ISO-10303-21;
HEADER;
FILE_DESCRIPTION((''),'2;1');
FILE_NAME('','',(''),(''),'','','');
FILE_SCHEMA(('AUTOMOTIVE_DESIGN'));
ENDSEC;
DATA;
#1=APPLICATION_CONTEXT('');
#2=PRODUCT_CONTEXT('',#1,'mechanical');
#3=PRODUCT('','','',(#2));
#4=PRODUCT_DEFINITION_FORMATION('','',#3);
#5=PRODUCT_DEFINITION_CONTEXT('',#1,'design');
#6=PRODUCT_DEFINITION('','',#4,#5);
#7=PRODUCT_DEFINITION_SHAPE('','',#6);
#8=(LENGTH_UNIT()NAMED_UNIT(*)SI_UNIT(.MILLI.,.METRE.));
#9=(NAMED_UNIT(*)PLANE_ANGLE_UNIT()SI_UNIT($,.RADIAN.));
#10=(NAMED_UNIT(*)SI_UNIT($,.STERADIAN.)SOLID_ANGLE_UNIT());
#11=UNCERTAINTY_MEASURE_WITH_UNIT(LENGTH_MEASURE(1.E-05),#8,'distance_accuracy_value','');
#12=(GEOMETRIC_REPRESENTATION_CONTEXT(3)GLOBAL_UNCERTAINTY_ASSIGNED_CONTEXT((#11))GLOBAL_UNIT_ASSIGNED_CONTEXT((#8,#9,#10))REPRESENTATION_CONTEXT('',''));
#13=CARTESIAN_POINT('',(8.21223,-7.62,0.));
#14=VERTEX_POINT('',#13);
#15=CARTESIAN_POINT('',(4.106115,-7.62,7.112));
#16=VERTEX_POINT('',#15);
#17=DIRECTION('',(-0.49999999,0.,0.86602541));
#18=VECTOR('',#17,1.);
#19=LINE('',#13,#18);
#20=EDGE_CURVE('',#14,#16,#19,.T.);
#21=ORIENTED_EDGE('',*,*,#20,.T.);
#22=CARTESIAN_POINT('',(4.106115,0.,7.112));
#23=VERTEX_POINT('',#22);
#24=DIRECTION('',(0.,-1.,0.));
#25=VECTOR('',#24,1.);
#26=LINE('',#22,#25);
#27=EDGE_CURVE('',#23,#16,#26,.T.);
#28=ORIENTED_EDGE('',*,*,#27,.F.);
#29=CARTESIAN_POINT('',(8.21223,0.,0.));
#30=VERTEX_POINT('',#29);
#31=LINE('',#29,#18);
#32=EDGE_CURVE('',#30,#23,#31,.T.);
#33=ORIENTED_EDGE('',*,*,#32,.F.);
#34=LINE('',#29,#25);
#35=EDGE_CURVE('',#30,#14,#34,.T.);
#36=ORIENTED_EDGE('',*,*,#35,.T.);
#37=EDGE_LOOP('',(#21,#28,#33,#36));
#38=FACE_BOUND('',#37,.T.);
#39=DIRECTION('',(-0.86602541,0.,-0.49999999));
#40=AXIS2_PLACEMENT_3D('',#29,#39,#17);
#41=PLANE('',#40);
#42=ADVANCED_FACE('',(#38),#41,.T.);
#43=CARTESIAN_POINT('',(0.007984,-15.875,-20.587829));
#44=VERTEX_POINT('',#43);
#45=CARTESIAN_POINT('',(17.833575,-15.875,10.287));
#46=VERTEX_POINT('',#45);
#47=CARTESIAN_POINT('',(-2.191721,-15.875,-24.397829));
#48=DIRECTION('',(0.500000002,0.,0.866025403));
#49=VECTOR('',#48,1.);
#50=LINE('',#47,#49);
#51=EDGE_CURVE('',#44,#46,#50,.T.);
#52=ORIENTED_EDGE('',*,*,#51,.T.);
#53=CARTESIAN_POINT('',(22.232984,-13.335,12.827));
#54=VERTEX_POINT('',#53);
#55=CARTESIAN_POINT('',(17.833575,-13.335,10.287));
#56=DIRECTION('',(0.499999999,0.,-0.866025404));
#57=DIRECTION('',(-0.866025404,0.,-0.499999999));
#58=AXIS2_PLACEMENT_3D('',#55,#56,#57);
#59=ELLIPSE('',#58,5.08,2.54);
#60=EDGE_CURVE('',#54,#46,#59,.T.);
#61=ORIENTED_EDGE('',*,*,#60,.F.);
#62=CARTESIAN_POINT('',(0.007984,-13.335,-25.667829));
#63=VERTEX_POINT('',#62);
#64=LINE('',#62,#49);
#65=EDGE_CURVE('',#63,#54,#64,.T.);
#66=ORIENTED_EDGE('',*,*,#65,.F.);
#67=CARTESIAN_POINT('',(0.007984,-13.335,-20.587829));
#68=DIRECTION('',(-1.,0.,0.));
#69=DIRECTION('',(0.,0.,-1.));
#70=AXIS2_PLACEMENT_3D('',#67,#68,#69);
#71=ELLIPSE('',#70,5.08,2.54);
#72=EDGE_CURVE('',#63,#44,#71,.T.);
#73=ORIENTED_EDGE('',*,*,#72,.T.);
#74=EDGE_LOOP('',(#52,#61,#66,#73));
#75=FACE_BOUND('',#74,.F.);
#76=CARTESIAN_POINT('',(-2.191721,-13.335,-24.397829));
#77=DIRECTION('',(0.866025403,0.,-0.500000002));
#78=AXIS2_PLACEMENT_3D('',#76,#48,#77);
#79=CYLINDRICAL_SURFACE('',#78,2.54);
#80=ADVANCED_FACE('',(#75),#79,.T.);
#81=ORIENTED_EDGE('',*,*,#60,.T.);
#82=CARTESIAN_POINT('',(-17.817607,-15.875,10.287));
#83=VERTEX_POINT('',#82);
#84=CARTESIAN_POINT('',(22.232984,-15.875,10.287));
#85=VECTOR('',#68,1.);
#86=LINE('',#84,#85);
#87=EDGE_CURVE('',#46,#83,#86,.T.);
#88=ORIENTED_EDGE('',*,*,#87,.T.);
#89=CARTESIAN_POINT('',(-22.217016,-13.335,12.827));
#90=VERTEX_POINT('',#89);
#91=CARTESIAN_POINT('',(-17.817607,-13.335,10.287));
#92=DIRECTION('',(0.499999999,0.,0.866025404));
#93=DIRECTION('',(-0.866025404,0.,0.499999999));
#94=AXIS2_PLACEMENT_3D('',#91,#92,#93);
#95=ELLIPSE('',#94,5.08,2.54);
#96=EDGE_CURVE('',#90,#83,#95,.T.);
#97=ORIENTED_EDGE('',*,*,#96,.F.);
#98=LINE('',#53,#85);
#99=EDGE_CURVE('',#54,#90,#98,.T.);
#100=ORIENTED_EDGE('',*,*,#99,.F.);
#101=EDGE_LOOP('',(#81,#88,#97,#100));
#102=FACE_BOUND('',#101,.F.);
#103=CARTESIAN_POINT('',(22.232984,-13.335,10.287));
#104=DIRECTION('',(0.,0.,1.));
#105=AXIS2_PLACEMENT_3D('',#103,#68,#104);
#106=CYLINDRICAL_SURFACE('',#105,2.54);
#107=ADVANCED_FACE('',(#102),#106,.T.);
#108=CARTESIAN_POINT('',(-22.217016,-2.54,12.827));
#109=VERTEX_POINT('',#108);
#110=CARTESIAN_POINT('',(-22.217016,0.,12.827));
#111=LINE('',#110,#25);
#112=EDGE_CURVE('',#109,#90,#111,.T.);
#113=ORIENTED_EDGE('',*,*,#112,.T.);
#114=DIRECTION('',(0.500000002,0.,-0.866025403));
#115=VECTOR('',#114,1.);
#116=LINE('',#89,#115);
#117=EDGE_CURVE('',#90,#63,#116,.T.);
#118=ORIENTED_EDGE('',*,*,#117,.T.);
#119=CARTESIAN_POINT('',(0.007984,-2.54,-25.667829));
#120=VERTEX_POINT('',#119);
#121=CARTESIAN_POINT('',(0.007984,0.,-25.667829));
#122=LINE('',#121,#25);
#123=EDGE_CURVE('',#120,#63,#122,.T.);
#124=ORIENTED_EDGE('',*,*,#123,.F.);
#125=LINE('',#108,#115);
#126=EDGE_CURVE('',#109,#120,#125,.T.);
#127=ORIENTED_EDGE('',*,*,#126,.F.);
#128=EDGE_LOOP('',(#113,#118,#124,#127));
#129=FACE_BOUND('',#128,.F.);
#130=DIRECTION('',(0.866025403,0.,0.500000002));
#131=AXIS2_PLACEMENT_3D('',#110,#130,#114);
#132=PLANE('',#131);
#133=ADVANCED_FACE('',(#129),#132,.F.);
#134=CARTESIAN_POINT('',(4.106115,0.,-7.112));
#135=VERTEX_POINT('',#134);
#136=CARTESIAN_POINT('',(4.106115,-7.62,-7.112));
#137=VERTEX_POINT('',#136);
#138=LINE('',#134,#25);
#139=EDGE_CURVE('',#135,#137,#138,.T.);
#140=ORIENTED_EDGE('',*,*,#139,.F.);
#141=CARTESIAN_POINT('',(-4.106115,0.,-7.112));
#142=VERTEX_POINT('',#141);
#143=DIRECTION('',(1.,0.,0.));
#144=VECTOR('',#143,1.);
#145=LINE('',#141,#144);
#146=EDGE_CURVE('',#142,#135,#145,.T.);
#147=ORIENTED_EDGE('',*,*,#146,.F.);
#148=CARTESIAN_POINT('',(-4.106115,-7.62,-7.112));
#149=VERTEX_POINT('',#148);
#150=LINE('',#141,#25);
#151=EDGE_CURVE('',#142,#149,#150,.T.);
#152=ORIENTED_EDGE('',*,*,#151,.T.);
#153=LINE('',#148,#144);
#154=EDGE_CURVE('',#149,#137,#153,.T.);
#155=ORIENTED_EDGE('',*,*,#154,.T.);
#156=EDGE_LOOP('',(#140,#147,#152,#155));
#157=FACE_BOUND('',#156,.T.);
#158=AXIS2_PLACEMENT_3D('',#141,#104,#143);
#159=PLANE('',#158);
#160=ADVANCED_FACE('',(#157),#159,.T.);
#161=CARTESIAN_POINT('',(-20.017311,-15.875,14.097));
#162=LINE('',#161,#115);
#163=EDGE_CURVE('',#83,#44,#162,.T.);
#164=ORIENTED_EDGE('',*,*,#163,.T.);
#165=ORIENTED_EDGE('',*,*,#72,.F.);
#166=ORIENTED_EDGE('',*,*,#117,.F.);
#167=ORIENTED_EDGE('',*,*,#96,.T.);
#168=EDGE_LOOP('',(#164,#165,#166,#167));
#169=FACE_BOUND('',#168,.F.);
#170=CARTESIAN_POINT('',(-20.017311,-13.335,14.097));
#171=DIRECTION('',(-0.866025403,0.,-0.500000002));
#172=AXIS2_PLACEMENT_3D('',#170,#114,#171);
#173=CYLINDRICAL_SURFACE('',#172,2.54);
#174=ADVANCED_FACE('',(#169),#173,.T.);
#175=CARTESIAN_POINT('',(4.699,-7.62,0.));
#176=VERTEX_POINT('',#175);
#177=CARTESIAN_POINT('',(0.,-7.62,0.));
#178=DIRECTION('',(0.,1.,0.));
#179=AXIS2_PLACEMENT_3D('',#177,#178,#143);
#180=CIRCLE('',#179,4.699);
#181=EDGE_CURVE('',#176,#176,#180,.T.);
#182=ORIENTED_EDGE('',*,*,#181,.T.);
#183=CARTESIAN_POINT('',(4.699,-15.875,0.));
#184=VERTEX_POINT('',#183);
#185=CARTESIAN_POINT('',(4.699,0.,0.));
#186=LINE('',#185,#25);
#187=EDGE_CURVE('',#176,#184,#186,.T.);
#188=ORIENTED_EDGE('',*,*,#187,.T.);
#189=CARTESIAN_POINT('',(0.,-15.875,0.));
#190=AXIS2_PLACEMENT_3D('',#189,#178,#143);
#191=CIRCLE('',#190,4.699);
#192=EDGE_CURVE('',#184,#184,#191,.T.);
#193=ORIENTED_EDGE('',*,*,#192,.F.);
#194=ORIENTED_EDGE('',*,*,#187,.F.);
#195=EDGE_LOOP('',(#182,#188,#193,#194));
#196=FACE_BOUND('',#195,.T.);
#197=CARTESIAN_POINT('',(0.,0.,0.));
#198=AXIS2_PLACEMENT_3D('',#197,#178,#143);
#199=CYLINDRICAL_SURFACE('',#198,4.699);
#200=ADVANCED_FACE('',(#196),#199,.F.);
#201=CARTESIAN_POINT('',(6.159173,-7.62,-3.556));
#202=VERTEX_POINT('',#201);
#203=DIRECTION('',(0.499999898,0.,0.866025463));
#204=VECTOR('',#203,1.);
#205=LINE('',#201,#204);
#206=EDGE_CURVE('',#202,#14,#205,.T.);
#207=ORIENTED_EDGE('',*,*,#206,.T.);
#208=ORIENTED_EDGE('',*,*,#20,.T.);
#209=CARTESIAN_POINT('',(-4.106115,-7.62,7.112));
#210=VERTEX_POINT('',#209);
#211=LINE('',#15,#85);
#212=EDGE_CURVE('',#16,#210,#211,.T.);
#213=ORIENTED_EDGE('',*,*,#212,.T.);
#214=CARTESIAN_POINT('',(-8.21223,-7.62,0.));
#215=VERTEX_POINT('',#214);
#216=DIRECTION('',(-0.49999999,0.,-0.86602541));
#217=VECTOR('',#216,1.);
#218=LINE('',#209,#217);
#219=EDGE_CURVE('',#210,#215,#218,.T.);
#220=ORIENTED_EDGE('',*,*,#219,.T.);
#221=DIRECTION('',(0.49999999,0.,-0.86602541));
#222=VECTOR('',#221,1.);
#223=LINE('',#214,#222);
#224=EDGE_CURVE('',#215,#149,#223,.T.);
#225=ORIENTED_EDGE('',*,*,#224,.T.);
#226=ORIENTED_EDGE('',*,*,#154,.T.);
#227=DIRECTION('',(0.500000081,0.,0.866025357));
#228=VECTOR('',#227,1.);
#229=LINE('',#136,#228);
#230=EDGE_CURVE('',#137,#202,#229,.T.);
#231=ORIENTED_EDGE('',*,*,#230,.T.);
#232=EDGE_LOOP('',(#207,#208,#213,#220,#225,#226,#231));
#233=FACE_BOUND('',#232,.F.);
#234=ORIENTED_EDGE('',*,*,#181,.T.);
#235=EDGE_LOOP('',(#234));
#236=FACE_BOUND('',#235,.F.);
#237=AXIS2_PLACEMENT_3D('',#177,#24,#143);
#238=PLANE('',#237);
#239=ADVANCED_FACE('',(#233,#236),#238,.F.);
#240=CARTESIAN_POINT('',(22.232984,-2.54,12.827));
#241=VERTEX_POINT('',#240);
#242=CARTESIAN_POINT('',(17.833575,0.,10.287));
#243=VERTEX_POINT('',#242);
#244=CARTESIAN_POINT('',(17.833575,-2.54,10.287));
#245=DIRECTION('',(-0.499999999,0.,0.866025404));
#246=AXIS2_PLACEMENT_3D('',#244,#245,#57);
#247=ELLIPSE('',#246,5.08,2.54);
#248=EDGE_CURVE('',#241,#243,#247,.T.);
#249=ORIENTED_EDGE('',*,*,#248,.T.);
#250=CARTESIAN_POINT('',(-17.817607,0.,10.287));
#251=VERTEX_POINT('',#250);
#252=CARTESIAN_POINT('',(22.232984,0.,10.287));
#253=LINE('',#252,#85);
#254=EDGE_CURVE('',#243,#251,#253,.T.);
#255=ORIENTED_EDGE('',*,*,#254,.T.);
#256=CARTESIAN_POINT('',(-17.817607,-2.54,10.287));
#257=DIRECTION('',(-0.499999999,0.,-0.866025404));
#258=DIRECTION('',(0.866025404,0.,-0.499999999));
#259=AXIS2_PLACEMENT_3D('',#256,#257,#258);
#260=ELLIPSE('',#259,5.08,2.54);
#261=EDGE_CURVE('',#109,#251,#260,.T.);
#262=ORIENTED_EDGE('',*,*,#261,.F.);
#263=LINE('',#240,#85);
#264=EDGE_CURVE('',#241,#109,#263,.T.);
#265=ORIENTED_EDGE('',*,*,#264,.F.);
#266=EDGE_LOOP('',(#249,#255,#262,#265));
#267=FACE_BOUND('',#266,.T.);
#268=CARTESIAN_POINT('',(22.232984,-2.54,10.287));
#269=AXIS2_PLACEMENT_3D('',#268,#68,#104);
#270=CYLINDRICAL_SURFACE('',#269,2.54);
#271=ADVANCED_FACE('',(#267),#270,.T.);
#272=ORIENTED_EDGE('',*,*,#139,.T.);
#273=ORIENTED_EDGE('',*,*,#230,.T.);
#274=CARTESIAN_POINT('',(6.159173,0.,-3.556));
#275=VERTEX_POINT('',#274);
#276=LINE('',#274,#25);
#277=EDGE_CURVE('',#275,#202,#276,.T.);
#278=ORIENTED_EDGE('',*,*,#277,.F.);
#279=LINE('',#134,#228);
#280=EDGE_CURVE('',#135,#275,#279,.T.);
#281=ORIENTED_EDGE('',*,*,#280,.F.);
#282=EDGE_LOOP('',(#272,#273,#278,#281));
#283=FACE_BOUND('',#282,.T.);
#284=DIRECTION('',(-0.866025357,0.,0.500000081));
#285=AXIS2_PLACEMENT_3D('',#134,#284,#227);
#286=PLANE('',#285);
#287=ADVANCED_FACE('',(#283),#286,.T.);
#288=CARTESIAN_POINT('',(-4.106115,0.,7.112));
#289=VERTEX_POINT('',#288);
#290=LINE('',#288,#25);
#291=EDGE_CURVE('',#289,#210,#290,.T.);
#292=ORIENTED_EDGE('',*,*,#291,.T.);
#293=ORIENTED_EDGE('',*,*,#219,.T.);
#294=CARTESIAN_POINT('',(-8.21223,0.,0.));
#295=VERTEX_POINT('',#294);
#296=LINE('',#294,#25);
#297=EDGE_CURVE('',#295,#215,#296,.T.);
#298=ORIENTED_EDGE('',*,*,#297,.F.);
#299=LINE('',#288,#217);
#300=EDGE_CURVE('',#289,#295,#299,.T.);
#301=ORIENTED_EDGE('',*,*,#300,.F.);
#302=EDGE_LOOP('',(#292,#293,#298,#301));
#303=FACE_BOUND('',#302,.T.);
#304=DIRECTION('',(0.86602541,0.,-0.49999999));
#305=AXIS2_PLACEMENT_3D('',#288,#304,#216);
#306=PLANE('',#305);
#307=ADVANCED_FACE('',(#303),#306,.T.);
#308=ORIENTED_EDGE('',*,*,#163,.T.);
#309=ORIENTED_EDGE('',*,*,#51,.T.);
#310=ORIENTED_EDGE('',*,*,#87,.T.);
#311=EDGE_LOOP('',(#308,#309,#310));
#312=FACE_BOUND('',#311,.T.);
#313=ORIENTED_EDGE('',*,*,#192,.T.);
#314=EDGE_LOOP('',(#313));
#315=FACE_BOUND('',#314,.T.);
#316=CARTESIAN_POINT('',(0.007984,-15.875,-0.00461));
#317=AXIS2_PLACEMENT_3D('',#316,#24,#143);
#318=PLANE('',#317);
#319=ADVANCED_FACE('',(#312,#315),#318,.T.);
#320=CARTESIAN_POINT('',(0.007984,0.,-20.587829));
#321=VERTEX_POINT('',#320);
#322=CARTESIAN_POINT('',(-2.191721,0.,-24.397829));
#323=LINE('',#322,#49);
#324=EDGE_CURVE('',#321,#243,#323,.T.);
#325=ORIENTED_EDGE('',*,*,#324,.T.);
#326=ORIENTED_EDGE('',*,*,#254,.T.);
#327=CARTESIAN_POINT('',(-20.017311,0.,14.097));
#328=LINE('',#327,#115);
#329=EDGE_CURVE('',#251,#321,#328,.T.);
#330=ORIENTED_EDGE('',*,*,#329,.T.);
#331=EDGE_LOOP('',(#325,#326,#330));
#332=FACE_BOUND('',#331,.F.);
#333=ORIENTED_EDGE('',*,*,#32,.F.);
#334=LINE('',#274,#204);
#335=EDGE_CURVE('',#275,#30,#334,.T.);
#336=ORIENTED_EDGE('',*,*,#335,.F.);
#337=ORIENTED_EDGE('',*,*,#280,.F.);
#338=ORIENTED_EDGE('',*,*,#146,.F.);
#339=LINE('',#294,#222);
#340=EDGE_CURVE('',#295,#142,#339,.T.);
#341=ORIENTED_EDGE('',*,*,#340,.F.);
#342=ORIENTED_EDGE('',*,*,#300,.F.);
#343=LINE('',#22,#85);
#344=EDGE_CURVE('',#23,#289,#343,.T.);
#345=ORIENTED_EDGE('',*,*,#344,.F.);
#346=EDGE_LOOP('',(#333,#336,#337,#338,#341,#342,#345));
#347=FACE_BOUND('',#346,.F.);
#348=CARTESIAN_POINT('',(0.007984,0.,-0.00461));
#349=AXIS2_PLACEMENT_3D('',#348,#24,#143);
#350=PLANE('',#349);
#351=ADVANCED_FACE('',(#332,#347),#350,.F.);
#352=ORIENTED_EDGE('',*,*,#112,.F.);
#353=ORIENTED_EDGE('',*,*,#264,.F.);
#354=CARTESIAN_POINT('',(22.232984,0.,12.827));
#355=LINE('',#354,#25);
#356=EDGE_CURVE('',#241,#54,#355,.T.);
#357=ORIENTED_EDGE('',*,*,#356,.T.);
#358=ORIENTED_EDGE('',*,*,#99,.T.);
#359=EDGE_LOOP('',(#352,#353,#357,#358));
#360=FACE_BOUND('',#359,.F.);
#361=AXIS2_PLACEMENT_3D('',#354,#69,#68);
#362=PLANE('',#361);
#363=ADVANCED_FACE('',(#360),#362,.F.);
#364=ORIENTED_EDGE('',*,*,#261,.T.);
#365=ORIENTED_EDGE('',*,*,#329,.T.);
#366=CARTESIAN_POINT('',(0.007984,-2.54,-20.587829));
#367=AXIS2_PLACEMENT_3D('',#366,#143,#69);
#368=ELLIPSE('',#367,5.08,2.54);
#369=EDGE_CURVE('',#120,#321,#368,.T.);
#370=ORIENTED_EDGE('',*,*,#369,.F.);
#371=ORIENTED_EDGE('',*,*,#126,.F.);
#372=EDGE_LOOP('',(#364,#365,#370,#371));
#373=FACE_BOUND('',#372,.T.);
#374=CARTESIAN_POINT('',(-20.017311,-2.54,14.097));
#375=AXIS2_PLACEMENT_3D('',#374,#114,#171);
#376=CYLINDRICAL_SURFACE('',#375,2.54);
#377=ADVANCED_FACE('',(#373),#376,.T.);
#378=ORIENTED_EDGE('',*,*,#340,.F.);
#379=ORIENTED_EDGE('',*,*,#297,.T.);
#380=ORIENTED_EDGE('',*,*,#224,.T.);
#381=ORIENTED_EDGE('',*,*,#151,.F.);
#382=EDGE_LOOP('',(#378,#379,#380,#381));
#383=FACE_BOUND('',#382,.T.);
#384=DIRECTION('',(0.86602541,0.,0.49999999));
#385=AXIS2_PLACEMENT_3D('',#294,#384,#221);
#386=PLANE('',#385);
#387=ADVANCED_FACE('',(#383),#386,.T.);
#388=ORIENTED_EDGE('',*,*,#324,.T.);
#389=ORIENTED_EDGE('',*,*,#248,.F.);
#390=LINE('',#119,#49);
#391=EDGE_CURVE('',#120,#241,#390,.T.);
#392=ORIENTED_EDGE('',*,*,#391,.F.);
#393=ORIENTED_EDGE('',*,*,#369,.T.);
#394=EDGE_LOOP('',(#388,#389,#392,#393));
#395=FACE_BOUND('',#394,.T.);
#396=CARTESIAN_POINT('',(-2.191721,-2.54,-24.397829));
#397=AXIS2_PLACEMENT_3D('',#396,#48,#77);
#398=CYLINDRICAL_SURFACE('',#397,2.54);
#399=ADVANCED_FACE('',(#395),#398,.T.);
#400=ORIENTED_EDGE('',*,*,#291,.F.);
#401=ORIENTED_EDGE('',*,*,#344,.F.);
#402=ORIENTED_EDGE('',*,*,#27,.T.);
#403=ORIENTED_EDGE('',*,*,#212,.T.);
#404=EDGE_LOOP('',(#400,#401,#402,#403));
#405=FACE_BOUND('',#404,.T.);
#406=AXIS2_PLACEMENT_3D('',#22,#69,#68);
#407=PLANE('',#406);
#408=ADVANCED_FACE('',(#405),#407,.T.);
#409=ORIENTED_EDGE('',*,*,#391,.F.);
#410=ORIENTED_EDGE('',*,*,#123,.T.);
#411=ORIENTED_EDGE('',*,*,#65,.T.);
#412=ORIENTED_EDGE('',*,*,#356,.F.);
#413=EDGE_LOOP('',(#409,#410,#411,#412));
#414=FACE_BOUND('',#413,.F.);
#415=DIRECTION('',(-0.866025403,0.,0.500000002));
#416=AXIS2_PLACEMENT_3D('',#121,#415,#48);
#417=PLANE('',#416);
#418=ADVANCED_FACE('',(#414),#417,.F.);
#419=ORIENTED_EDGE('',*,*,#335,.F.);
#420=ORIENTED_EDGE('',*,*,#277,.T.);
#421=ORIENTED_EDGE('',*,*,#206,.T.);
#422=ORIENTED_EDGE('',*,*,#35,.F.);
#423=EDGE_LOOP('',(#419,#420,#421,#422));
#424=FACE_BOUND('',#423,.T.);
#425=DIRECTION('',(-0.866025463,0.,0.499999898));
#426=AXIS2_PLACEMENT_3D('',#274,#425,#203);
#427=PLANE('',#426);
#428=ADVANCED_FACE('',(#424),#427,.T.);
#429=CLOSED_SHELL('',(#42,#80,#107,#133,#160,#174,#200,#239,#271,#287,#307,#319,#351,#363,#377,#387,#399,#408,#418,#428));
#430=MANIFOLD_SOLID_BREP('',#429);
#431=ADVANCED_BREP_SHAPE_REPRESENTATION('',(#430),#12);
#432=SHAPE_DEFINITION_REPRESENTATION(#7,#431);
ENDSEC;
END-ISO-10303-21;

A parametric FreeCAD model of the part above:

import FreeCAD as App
import Part
import Sketcher
from FreeCAD import Vector
Q = App.Units.Quantity


def edges_at(feature, points):
    """Names of the edges that pass closest to the given points."""
    edges = feature.Shape.Edges
    near = lambda p: min(range(len(edges)), key=lambda i: edges[i].distToShape(Part.Vertex(*p))[0])
    return sorted({f"Edge{near(p) + 1}" for p in points})


def add_polygon(sketch, points):
    """Adds a closed chain of lines whose ends are joined by coincident constraints."""
    first, n = sketch.GeometryCount, len(points)
    for a, b in zip(points, points[1:] + points[:1]):
        sketch.addGeometry(Part.LineSegment(App.Vector(*a, 0), App.Vector(*b, 0)), False)
    for i in range(n):
        sketch.addConstraint(Sketcher.Constraint("Coincident", first + i, 2, first + (i + 1) % n, 1))

doc = App.newDocument("Part")
body = doc.addObject("PartDesign::Body", "Body")

# Sketch on XZ plane
sketch1 = body.newObject("Sketcher::SketchObject", "Sketch")
sketch1.AttachmentSupport = (doc.getObject("XZ_Plane"), [""])
sketch1.MapMode = "FlatFace"
add_polygon(sketch1, [(22.232984, 12.827), (-22.217016, 12.827), (0.007984, -25.667829)])  # lines 0-2
sketch1.addConstraint(Sketcher.Constraint("Horizontal", 0))
sketch1.addConstraint(Sketcher.Constraint("Equal", 1, 2))
sketch1.addConstraint(Sketcher.Constraint("Angle", 1, Q("-60 deg")))
sketch1.addConstraint(Sketcher.Constraint("DistanceX", 0, 2, 0, 1, Q("1.75 in")))
sketch1.addConstraint(Sketcher.Constraint("DistanceY", -1, 1, 0, 2, Q("0.505 in")))
sketch1.addConstraint(Sketcher.Constraint("DistanceX", 0, 2, -1, 1, Q("22.217016 mm")))
pad1 = body.newObject("PartDesign::Pad", "Pad")
pad1.Profile = sketch1
pad1.Length = Q("0.625 in")

# Sketch on XZ plane
sketch2 = body.newObject("Sketcher::SketchObject", "Sketch001")
sketch2.AttachmentSupport = (doc.getObject("XZ_Plane"), [""])
sketch2.MapMode = "FlatFace"
add_polygon(sketch2, [(6.159173, -3.556), (8.21223, 0), (4.106115, 7.112), (-4.106115, 7.112), (-8.21223, 0), (-4.106115, -7.112), (4.106115, -7.112)])  # lines 0-6
sketch2.addConstraint(Sketcher.Constraint("Horizontal", 2))
sketch2.addConstraint(Sketcher.Constraint("Horizontal", 5))
sketch2.addConstraint(Sketcher.Constraint("Symmetric", 0, 2, 3, 2, -1, 1))
sketch2.addConstraint(Sketcher.Constraint("Symmetric", 1, 2, 4, 2, -1, 1))
sketch2.addConstraint(Sketcher.Constraint("PointOnObject", 0, 2, -1))
sketch2.addConstraint(Sketcher.Constraint("Parallel", 0, 3))
sketch2.addConstraint(Sketcher.Constraint("Parallel", 3, 6))
sketch2.addConstraint(Sketcher.Constraint("Vertical", 2, 2, 4, 2))
sketch2.addConstraint(Sketcher.Constraint("Equal", 0, 6))
sketch2.addConstraint(Sketcher.Constraint("Angle", 0, Q("60.000007 deg")))
sketch2.addConstraint(Sketcher.Constraint("DistanceY", -1, 1, 1, 2, Q("0.28 in")))
sketch2.addConstraint(Sketcher.Constraint("DistanceX", 2, 2, 2, 1, Q("8.21223 mm")))
pocket1 = body.newObject("PartDesign::Pocket", "Pocket")
pocket1.Profile = sketch2
pocket1.Length = Q("0.3 in")
pocket1.Reversed = True

# Sketch on XZ plane
sketch3 = body.newObject("Sketcher::SketchObject", "Sketch002")
sketch3.AttachmentSupport = (doc.getObject("XZ_Plane"), [""])
sketch3.MapMode = "FlatFace"
sketch3.addGeometry(Part.Circle(Vector(0, 0, 0), Vector(0, 0, 1), 4.699), False)
sketch3.addConstraint(Sketcher.Constraint("Coincident", 0, 3, -1, 1))
sketch3.addConstraint(Sketcher.Constraint("Diameter", 0, Q("0.37 in")))
pocket2 = body.newObject("PartDesign::Pocket", "Pocket001")
pocket2.Profile = sketch3
pocket2.Length = Q("1 in")
pocket2.Reversed = True
doc.recompute()

fillet = body.newObject("PartDesign::Fillet", "Fillet")
fillet.Base = (pocket2, edges_at(pocket2, [
    (-11.105, 0, -6.42),
    (0.008, 0, 12.827),
    (11.12, 0, -6.42),
    (0.008, -15.875, 12.827),
    (-11.105, -15.875, -6.42),
    (11.12, -15.875, -6.42),
]))
fillet.Radius = Q("0.1 in")

doc.recompute()
